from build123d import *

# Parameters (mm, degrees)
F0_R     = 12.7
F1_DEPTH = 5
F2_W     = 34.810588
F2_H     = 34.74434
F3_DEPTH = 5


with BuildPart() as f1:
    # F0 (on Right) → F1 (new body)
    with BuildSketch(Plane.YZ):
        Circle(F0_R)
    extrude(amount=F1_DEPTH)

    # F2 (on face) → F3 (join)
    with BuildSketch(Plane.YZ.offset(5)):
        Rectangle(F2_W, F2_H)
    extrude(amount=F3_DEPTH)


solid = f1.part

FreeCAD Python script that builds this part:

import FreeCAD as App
import Part
import Sketcher

V = App.Vector

doc = App.newDocument("Part")
params = doc.addObject("Spreadsheet::Sheet", "Params")
for row, (alias, value) in enumerate([
    ("sketch1_diameter", "25.4 mm"),
    ("pad1_length", "5 mm"),
    ("pad2_length", "5 mm"),
], start=1):
    params.set(f"A{row}", alias)
    params.set(f"B{row}", "=" + value)
    params.setAlias(f"B{row}", alias)

body = doc.addObject("PartDesign::Body", "Body")

sketch1 = doc.addObject("Sketcher::SketchObject", "Sketch")
body.addObject(sketch1)
sketch1.AttachmentSupport = (doc.YZ_Plane, [""])
sketch1.MapMode = "FlatFace"
sketch1.addGeometry(Part.Circle(V(0, 0, 0), V(0, 0, 1), 13), False)
sketch1.addConstraint([
    Sketcher.Constraint("Coincident", 0, 3, -1, 1),
    Sketcher.Constraint("Diameter", 0, 25.4),
])
sketch1.setExpression("Constraints[1]", "Params.sketch1_diameter")
pad1 = doc.addObject("PartDesign::Pad", "Pad")
body.addObject(pad1)
pad1.Profile = sketch1
pad1.setExpression("Length", "Params.pad1_length")

sketch2 = doc.addObject("Sketcher::SketchObject", "Sketch001")
body.addObject(sketch2)
sketch2.AttachmentSupport = (doc.YZ_Plane, [""])
sketch2.MapMode = "FlatFace"
sketch2.AttachmentOffset = App.Placement(V(0, 0, 5), App.Rotation())
sketch2.addGeometry([
    Part.LineSegment(V(-17, 17, 0), V(-17, -17, 0)),
    Part.LineSegment(V(-17, -17, 0), V(17, -17, 0)),
    Part.LineSegment(V(17, -17, 0), V(17, 17, 0)),
    Part.LineSegment(V(17, 17, 0), V(-17, 17, 0)),
], False)
sketch2.addConstraint([
    Sketcher.Constraint("Coincident", 0, 2, 1, 1),
    Sketcher.Constraint("Coincident", 1, 2, 2, 1),
    Sketcher.Constraint("Coincident", 2, 2, 3, 1),
    Sketcher.Constraint("Coincident", 3, 2, 0, 1),
    Sketcher.Constraint("Vertical", 0),
    Sketcher.Constraint("Horizontal", 1),
    Sketcher.Constraint("Vertical", 2),
    Sketcher.Constraint("Horizontal", 3),
    Sketcher.Constraint("Symmetric", 0, 2, 2, 2, -1, 1),
    Sketcher.Constraint("DistanceX", 1, 1, 1, 2, 34.810588),
    Sketcher.Constraint("DistanceY", 0, 2, 0, 1, 34.74434),
])
pad2 = doc.addObject("PartDesign::Pad", "Pad001")
body.addObject(pad2)
pad2.Profile = sketch2
pad2.setExpression("Length", "Params.pad2_length")

doc.recompute()
